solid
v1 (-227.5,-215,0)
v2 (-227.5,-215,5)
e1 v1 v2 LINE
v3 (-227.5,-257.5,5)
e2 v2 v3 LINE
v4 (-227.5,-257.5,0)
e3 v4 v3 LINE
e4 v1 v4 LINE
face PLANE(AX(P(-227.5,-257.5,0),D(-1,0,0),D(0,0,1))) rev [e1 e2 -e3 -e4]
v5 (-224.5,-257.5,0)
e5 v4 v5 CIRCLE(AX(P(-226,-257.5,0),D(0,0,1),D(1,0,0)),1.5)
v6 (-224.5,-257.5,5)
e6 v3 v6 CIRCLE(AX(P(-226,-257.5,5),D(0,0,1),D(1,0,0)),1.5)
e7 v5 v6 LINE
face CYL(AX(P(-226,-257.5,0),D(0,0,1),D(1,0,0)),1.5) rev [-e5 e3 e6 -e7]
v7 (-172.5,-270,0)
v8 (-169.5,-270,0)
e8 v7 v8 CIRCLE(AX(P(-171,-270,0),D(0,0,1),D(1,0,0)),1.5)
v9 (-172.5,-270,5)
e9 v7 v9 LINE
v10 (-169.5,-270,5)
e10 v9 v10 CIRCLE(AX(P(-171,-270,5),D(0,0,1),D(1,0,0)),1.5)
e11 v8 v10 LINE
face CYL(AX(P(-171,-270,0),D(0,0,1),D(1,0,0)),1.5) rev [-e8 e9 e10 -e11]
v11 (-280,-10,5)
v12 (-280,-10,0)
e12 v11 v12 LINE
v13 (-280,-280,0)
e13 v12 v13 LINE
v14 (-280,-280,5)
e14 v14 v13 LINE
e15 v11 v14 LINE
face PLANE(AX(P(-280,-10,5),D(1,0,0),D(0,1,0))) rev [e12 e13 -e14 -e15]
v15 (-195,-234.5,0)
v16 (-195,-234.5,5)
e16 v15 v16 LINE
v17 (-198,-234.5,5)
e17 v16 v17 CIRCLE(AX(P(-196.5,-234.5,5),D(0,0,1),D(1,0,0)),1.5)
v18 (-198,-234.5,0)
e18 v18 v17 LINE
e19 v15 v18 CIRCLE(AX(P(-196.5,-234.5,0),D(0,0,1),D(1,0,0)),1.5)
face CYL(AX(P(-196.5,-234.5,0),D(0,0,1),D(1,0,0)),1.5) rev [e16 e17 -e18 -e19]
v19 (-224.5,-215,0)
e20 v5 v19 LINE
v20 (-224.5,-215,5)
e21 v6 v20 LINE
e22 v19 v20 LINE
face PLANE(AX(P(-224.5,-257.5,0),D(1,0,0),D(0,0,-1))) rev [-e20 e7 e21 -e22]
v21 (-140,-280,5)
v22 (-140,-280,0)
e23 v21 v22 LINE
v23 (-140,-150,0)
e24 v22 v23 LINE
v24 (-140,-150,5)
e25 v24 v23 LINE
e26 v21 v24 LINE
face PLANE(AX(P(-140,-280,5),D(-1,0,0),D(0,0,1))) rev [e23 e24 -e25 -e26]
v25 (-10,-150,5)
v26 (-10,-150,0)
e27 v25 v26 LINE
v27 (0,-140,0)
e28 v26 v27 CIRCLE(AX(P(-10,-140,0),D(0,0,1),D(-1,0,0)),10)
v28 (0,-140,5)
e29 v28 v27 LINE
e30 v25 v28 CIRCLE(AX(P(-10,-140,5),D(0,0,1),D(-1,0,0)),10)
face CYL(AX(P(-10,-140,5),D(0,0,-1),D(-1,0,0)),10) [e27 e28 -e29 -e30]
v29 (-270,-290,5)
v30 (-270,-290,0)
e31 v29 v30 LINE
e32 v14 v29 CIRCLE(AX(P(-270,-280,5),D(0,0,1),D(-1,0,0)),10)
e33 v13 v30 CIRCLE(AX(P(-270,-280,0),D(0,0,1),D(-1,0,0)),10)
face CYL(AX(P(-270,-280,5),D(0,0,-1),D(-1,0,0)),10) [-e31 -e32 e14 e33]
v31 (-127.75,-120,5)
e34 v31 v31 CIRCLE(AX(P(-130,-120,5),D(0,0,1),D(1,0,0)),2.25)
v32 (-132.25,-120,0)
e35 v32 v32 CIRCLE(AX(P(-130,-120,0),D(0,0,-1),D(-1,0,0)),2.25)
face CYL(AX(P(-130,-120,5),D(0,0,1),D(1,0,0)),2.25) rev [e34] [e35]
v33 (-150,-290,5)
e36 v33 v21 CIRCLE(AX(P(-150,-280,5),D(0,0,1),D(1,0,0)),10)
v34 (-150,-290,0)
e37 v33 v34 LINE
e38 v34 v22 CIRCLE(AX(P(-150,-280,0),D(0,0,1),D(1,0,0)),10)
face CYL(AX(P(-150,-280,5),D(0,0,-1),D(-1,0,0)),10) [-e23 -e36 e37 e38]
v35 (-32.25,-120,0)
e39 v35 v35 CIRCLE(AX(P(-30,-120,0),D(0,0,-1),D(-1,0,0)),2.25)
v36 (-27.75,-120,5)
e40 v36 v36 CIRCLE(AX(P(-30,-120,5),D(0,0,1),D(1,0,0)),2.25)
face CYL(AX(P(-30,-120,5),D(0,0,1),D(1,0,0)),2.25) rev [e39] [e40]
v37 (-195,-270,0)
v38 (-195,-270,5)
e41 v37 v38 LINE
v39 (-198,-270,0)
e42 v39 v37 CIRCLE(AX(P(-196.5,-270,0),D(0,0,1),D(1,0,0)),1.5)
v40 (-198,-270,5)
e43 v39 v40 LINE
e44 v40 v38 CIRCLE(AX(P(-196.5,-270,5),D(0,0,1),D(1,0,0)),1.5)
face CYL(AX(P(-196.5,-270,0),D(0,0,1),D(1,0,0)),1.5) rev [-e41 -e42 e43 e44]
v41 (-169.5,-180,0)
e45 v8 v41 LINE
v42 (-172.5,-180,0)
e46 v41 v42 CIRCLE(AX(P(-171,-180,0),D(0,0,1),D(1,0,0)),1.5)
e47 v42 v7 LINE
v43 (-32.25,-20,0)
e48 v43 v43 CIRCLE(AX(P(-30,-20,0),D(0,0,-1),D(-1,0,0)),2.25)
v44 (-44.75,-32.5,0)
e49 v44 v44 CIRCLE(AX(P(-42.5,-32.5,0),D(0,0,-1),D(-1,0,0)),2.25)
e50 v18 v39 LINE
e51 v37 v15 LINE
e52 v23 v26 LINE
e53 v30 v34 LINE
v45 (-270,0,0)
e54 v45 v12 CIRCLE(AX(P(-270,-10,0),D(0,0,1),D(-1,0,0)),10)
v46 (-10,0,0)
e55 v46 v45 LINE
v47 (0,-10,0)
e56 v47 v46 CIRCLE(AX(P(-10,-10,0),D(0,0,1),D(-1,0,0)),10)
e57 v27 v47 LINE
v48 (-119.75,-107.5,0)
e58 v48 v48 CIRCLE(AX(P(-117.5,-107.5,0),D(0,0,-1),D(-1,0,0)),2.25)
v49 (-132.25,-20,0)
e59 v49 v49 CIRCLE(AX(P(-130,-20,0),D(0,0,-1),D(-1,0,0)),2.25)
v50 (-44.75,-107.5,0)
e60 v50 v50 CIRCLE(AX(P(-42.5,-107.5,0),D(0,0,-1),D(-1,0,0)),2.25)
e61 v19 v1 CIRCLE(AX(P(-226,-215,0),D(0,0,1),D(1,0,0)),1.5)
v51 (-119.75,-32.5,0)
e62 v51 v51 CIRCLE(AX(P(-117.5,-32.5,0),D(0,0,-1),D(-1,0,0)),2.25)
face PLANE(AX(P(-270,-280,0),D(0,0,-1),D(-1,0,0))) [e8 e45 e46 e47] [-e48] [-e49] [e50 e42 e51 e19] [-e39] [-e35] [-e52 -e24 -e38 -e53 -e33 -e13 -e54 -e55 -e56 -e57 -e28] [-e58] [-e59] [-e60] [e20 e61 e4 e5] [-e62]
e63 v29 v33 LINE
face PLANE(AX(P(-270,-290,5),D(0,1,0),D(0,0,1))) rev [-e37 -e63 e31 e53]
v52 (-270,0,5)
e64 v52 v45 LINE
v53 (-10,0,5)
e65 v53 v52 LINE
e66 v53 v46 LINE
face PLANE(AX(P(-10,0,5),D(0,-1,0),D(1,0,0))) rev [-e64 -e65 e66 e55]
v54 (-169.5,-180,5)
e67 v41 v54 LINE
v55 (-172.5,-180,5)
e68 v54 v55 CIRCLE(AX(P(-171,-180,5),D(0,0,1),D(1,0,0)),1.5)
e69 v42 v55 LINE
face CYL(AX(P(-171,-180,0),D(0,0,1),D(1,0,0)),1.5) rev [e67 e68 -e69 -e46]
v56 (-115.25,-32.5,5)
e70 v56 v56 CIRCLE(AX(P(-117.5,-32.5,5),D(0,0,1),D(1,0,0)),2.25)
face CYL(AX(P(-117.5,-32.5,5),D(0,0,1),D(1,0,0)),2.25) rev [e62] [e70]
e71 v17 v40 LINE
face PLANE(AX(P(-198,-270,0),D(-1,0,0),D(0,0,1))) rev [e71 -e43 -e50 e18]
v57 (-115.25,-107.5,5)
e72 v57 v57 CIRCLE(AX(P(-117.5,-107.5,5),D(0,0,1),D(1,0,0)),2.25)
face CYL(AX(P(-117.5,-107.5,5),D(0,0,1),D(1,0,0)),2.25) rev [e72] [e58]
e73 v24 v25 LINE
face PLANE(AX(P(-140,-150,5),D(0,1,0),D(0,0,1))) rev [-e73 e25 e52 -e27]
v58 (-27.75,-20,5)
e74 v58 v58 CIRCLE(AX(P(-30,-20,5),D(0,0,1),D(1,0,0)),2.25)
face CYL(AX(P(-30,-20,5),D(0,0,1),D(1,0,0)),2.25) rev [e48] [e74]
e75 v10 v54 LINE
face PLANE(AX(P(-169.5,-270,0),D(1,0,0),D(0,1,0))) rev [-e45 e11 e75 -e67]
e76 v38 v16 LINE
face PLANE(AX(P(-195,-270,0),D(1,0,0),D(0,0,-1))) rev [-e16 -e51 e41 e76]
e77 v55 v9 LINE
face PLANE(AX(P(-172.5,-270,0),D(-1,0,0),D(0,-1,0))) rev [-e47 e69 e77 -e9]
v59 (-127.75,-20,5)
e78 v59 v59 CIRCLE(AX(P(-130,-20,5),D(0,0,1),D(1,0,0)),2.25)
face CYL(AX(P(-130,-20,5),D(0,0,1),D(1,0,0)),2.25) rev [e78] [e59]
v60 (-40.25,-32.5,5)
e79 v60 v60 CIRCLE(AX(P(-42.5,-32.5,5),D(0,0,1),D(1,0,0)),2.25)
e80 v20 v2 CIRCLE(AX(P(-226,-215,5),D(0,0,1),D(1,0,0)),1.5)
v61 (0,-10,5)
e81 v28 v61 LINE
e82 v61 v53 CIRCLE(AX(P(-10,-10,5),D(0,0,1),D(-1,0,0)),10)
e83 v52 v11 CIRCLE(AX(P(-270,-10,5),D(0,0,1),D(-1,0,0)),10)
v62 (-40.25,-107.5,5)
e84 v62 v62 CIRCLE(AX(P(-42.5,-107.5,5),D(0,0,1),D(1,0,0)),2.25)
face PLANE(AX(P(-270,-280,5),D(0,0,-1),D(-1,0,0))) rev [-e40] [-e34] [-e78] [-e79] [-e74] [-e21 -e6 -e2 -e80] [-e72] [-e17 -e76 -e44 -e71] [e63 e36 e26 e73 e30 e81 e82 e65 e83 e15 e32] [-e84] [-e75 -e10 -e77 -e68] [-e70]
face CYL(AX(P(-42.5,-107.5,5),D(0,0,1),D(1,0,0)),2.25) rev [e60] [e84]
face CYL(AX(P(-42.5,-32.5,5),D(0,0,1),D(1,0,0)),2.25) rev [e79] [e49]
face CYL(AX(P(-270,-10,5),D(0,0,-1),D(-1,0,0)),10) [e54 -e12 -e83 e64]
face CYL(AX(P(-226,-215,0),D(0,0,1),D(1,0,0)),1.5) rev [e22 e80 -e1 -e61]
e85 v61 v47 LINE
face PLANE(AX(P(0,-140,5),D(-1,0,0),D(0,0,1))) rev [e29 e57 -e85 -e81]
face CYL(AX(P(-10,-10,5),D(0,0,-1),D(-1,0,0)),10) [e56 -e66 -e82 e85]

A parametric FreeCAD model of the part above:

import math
import FreeCAD as App
import Part
import Sketcher
from FreeCAD import Vector
Q = App.Units.Quantity

doc = App.newDocument("Part")
body = doc.addObject("PartDesign::Body", "Body")

sketch1 = doc.addObject("Sketcher::SketchObject", "Sketch")
body.addObject(sketch1)
sketch1.AttachmentSupport = (doc.XY_Plane, [""])
sketch1.MapMode = "FlatFace"
sketch1.addGeometry([
    Part.LineSegment(Vector(-10, 0, 0), Vector(-270, 0, 0)),
    Part.ArcOfCircle(Part.Circle(Vector(-270, -10, 0), Vector(0, 0, 1), 10), math.radians(90), math.radians(180)),
    Part.LineSegment(Vector(-280, -10, 0), Vector(-280, -280, 0)),
    Part.ArcOfCircle(Part.Circle(Vector(-270, -280, 0), Vector(0, 0, 1), 10), math.radians(180), math.radians(270)),
    Part.LineSegment(Vector(-270, -290, 0), Vector(-150, -290, 0)),
    Part.ArcOfCircle(Part.Circle(Vector(-150, -280, 0), Vector(0, 0, 1), 10), math.radians(-90), math.radians(0)),
    Part.LineSegment(Vector(-140, -280, 0), Vector(-140, -150, 0)),
    Part.LineSegment(Vector(-140, -150, 0), Vector(-10, -150, 0)),
    Part.ArcOfCircle(Part.Circle(Vector(-10, -140, 0), Vector(0, 0, 1), 10), math.radians(-90), math.radians(0)),
    Part.LineSegment(Vector(0, -140, 0), Vector(0, -10, 0)),
    Part.ArcOfCircle(Part.Circle(Vector(-10, -10, 0), Vector(0, 0, 1), 10), math.radians(0), math.radians(90)),
], False)
sketch1.addConstraint([
    Sketcher.Constraint("Tangent", 0, 2, 1, 1),
    Sketcher.Constraint("Tangent", 1, 2, 2, 1),
    Sketcher.Constraint("Tangent", 2, 2, 3, 1),
    Sketcher.Constraint("Tangent", 3, 2, 4, 1),
    Sketcher.Constraint("Tangent", 4, 2, 5, 1),
    Sketcher.Constraint("Tangent", 5, 2, 6, 1),
    Sketcher.Constraint("Coincident", 6, 2, 7, 1),
    Sketcher.Constraint("Tangent", 7, 2, 8, 1),
    Sketcher.Constraint("Tangent", 8, 2, 9, 1),
    Sketcher.Constraint("Tangent", 9, 2, 10, 1),
    Sketcher.Constraint("Tangent", 10, 2, 0, 1),
    Sketcher.Constraint("Horizontal", 0),
    Sketcher.Constraint("Vertical", 2),
    Sketcher.Constraint("Horizontal", 4),
    Sketcher.Constraint("Vertical", 6),
    Sketcher.Constraint("Horizontal", 7),
    Sketcher.Constraint("Vertical", 9),
    Sketcher.Constraint("Equal", 1, 3),
    Sketcher.Constraint("Equal", 3, 5),
    Sketcher.Constraint("Equal", 5, 8),
    Sketcher.Constraint("Equal", 8, 10),
    Sketcher.Constraint("PointOnObject", 0, 2, -1),
    Sketcher.Constraint("PointOnObject", 8, 2, -2),
    Sketcher.Constraint("Equal", 7, 6),
    Sketcher.Constraint("Equal", 6, 9),
    Sketcher.Constraint("Radius", 1, Q("10 mm")),
    Sketcher.Constraint("DistanceX", 0, 2, 0, 1, Q("260 mm")),
    Sketcher.Constraint("DistanceX", 4, 1, 4, 2, Q("120 mm")),
])
pad1 = doc.addObject("PartDesign::Pad", "Pad")
body.addObject(pad1)
pad1.Profile = sketch1
pad1.Length = 5

sketch2 = doc.addObject("Sketcher::SketchObject", "Sketch001")
body.addObject(sketch2)
sketch2.AttachmentSupport = (doc.XY_Plane, [""])
sketch2.MapMode = "FlatFace"
sketch2.AttachmentOffset = App.Placement(Vector(0, 0, 5), App.Rotation())
sketch2.addGeometry([
    Part.Circle(Vector(-130, -120, 0), Vector(0, 0, 1), 2.25),
    Part.Circle(Vector(-30, -120, 0), Vector(0, 0, 1), 2.25),
    Part.Circle(Vector(-30, -20, 0), Vector(0, 0, 1), 2.25),
    Part.Circle(Vector(-130, -20, 0), Vector(0, 0, 1), 2.25),
    Part.Circle(Vector(-117.5, -107.5, 0), Vector(0, 0, 1), 2.25),
    Part.Circle(Vector(-42.5, -107.5, 0), Vector(0, 0, 1), 2.25),
    Part.Circle(Vector(-42.5, -32.5, 0), Vector(0, 0, 1), 2.25),
    Part.Circle(Vector(-117.5, -32.5, 0), Vector(0, 0, 1), 2.25),
], False)
sketch2.addConstraint([
    Sketcher.Constraint("Equal", 0, 1),
    Sketcher.Constraint("Equal", 1, 2),
    Sketcher.Constraint("Equal", 2, 3),
    Sketcher.Constraint("Equal", 3, 4),
    Sketcher.Constraint("Equal", 4, 5),
    Sketcher.Constraint("Equal", 5, 6),
    Sketcher.Constraint("Equal", 6, 7),
    Sketcher.Constraint("Horizontal", 0, 3, 1, 3),
    Sketcher.Constraint("Horizontal", 2, 3, 3, 3),
    Sketcher.Constraint("Horizontal", 4, 3, 5, 3),
    Sketcher.Constraint("Horizontal", 6, 3, 7, 3),
    Sketcher.Constraint("Vertical", 1, 3, 2, 3),
    Sketcher.Constraint("Vertical", 0, 3, 3, 3),
    Sketcher.Constraint("Vertical", 5, 3, 6, 3),
    Sketcher.Constraint("Vertical", 4, 3, 7, 3),
    Sketcher.Constraint("Diameter", 0, Q("4.5 mm")),
    Sketcher.Constraint("DistanceX", 0, 3, -1, 1, Q("130 mm")),
    Sketcher.Constraint("DistanceY", 0, 3, -1, 1, Q("120 mm")),
    Sketcher.Constraint("DistanceX", 1, 3, -1, 1, Q("30 mm")),
    Sketcher.Constraint("DistanceY", 2, 3, -1, 1, Q("20 mm")),
    Sketcher.Constraint("DistanceX", 4, 3, 5, 3, Q("75 mm")),
    Sketcher.Constraint("DistanceY", 5, 3, 6, 3, Q("75 mm")),
    Sketcher.Constraint("DistanceX", 4, 3, -1, 1, Q("117.5 mm")),
    Sketcher.Constraint("DistanceY", 4, 3, -1, 1, Q("107.5 mm")),
])
doc.recompute()
hole = doc.addObject("PartDesign::Hole", "Hole")
body.addObject(hole)
hole.Profile = sketch2
hole.ThreadType = "None"
hole.Diameter = 4.5
hole.DepthType = "Dimension"
hole.Depth = 10
hole.DrillPoint = "Angled"
hole.DrillPointAngle = 118

sketch3 = doc.addObject("Sketcher::SketchObject", "Sketch002")
body.addObject(sketch3)
sketch3.AttachmentSupport = (doc.XY_Plane, [""])
sketch3.MapMode = "FlatFace"
sketch3.AttachmentOffset = App.Placement(Vector(0, 0, 5), App.Rotation())
sketch3.addGeometry([
    Part.LineSegment(Vector(-172.5, -180, 0), Vector(-172.5, -270, 0)),
    Part.ArcOfCircle(Part.Circle(Vector(-171, -270, 0), Vector(0, 0, 1), 1.5), math.radians(180), math.radians(360)),
    Part.LineSegment(Vector(-169.5, -270, 0), Vector(-169.5, -180, 0)),
    Part.ArcOfCircle(Part.Circle(Vector(-171, -180, 0), Vector(0, 0, 1), 1.5), math.radians(0), math.radians(180)),
    Part.LineSegment(Vector(-198, -234.5, 0), Vector(-198, -270, 0)),
    Part.ArcOfCircle(Part.Circle(Vector(-196.5, -270, 0), Vector(0, 0, 1), 1.5), math.radians(180), math.radians(360)),
    Part.LineSegment(Vector(-195, -270, 0), Vector(-195, -234.5, 0)),
    Part.ArcOfCircle(Part.Circle(Vector(-196.5, -234.5, 0), Vector(0, 0, 1), 1.5), math.radians(0), math.radians(180)),
    Part.LineSegment(Vector(-227.5, -215, 0), Vector(-227.5, -257.5, 0)),
    Part.ArcOfCircle(Part.Circle(Vector(-226, -257.5, 0), Vector(0, 0, 1), 1.5), math.radians(180), math.radians(360)),
    Part.LineSegment(Vector(-224.5, -257.5, 0), Vector(-224.5, -215, 0)),
    Part.ArcOfCircle(Part.Circle(Vector(-226, -215, 0), Vector(0, 0, 1), 1.5), math.radians(0), math.radians(180)),
], False)
sketch3.addConstraint([
    Sketcher.Constraint("Tangent", 0, 2, 1, 1),
    Sketcher.Constraint("Tangent", 1, 2, 2, 1),
    Sketcher.Constraint("Tangent", 2, 2, 3, 1),
    Sketcher.Constraint("Tangent", 3, 2, 0, 1),
    Sketcher.Constraint("Tangent", 4, 2, 5, 1),
    Sketcher.Constraint("Tangent", 5, 2, 6, 1),
    Sketcher.Constraint("Tangent", 6, 2, 7, 1),
    Sketcher.Constraint("Tangent", 7, 2, 4, 1),
    Sketcher.Constraint("Tangent", 8, 2, 9, 1),
    Sketcher.Constraint("Tangent", 9, 2, 10, 1),
    Sketcher.Constraint("Tangent", 10, 2, 11, 1),
    Sketcher.Constraint("Tangent", 11, 2, 8, 1),
    Sketcher.Constraint("Vertical", 0),
    Sketcher.Constraint("Vertical", 2),
    Sketcher.Constraint("Vertical", 4),
    Sketcher.Constraint("Vertical", 6),
    Sketcher.Constraint("Vertical", 8),
    Sketcher.Constraint("Vertical", 10),
    Sketcher.Constraint("Equal", 3, 5),
    Sketcher.Constraint("Equal", 7, 9),
    Sketcher.Constraint("Horizontal", 1, 3, 5, 3),
    Sketcher.Constraint("Radius", 1, Q("1.5 mm")),
    Sketcher.Constraint("DistanceY", 0, 2, 0, 1, Q("90 mm")),
    Sketcher.Constraint("DistanceY", 4, 2, 4, 1, Q("35.5 mm")),
    Sketcher.Constraint("DistanceY", 8, 2, 8, 1, Q("42.5 mm")),
    Sketcher.Constraint("DistanceX", 1, 3, -1, 1, Q("171 mm")),
    Sketcher.Constraint("DistanceY", 1, 3, -1, 1, Q("270 mm")),
    Sketcher.Constraint("DistanceX", 9, 3, -1, 1, Q("226 mm")),
    Sketcher.Constraint("DistanceY", 11, 3, -1, 1, Q("215 mm")),
    Sketcher.Constraint("DistanceX", 4, 2, -1, 1, Q("198 mm")),
])
pocket1 = doc.addObject("PartDesign::Pocket", "Pocket")
body.addObject(pocket1)
pocket1.Profile = sketch3
pocket1.Type = "ThroughAll"

doc.recompute()
